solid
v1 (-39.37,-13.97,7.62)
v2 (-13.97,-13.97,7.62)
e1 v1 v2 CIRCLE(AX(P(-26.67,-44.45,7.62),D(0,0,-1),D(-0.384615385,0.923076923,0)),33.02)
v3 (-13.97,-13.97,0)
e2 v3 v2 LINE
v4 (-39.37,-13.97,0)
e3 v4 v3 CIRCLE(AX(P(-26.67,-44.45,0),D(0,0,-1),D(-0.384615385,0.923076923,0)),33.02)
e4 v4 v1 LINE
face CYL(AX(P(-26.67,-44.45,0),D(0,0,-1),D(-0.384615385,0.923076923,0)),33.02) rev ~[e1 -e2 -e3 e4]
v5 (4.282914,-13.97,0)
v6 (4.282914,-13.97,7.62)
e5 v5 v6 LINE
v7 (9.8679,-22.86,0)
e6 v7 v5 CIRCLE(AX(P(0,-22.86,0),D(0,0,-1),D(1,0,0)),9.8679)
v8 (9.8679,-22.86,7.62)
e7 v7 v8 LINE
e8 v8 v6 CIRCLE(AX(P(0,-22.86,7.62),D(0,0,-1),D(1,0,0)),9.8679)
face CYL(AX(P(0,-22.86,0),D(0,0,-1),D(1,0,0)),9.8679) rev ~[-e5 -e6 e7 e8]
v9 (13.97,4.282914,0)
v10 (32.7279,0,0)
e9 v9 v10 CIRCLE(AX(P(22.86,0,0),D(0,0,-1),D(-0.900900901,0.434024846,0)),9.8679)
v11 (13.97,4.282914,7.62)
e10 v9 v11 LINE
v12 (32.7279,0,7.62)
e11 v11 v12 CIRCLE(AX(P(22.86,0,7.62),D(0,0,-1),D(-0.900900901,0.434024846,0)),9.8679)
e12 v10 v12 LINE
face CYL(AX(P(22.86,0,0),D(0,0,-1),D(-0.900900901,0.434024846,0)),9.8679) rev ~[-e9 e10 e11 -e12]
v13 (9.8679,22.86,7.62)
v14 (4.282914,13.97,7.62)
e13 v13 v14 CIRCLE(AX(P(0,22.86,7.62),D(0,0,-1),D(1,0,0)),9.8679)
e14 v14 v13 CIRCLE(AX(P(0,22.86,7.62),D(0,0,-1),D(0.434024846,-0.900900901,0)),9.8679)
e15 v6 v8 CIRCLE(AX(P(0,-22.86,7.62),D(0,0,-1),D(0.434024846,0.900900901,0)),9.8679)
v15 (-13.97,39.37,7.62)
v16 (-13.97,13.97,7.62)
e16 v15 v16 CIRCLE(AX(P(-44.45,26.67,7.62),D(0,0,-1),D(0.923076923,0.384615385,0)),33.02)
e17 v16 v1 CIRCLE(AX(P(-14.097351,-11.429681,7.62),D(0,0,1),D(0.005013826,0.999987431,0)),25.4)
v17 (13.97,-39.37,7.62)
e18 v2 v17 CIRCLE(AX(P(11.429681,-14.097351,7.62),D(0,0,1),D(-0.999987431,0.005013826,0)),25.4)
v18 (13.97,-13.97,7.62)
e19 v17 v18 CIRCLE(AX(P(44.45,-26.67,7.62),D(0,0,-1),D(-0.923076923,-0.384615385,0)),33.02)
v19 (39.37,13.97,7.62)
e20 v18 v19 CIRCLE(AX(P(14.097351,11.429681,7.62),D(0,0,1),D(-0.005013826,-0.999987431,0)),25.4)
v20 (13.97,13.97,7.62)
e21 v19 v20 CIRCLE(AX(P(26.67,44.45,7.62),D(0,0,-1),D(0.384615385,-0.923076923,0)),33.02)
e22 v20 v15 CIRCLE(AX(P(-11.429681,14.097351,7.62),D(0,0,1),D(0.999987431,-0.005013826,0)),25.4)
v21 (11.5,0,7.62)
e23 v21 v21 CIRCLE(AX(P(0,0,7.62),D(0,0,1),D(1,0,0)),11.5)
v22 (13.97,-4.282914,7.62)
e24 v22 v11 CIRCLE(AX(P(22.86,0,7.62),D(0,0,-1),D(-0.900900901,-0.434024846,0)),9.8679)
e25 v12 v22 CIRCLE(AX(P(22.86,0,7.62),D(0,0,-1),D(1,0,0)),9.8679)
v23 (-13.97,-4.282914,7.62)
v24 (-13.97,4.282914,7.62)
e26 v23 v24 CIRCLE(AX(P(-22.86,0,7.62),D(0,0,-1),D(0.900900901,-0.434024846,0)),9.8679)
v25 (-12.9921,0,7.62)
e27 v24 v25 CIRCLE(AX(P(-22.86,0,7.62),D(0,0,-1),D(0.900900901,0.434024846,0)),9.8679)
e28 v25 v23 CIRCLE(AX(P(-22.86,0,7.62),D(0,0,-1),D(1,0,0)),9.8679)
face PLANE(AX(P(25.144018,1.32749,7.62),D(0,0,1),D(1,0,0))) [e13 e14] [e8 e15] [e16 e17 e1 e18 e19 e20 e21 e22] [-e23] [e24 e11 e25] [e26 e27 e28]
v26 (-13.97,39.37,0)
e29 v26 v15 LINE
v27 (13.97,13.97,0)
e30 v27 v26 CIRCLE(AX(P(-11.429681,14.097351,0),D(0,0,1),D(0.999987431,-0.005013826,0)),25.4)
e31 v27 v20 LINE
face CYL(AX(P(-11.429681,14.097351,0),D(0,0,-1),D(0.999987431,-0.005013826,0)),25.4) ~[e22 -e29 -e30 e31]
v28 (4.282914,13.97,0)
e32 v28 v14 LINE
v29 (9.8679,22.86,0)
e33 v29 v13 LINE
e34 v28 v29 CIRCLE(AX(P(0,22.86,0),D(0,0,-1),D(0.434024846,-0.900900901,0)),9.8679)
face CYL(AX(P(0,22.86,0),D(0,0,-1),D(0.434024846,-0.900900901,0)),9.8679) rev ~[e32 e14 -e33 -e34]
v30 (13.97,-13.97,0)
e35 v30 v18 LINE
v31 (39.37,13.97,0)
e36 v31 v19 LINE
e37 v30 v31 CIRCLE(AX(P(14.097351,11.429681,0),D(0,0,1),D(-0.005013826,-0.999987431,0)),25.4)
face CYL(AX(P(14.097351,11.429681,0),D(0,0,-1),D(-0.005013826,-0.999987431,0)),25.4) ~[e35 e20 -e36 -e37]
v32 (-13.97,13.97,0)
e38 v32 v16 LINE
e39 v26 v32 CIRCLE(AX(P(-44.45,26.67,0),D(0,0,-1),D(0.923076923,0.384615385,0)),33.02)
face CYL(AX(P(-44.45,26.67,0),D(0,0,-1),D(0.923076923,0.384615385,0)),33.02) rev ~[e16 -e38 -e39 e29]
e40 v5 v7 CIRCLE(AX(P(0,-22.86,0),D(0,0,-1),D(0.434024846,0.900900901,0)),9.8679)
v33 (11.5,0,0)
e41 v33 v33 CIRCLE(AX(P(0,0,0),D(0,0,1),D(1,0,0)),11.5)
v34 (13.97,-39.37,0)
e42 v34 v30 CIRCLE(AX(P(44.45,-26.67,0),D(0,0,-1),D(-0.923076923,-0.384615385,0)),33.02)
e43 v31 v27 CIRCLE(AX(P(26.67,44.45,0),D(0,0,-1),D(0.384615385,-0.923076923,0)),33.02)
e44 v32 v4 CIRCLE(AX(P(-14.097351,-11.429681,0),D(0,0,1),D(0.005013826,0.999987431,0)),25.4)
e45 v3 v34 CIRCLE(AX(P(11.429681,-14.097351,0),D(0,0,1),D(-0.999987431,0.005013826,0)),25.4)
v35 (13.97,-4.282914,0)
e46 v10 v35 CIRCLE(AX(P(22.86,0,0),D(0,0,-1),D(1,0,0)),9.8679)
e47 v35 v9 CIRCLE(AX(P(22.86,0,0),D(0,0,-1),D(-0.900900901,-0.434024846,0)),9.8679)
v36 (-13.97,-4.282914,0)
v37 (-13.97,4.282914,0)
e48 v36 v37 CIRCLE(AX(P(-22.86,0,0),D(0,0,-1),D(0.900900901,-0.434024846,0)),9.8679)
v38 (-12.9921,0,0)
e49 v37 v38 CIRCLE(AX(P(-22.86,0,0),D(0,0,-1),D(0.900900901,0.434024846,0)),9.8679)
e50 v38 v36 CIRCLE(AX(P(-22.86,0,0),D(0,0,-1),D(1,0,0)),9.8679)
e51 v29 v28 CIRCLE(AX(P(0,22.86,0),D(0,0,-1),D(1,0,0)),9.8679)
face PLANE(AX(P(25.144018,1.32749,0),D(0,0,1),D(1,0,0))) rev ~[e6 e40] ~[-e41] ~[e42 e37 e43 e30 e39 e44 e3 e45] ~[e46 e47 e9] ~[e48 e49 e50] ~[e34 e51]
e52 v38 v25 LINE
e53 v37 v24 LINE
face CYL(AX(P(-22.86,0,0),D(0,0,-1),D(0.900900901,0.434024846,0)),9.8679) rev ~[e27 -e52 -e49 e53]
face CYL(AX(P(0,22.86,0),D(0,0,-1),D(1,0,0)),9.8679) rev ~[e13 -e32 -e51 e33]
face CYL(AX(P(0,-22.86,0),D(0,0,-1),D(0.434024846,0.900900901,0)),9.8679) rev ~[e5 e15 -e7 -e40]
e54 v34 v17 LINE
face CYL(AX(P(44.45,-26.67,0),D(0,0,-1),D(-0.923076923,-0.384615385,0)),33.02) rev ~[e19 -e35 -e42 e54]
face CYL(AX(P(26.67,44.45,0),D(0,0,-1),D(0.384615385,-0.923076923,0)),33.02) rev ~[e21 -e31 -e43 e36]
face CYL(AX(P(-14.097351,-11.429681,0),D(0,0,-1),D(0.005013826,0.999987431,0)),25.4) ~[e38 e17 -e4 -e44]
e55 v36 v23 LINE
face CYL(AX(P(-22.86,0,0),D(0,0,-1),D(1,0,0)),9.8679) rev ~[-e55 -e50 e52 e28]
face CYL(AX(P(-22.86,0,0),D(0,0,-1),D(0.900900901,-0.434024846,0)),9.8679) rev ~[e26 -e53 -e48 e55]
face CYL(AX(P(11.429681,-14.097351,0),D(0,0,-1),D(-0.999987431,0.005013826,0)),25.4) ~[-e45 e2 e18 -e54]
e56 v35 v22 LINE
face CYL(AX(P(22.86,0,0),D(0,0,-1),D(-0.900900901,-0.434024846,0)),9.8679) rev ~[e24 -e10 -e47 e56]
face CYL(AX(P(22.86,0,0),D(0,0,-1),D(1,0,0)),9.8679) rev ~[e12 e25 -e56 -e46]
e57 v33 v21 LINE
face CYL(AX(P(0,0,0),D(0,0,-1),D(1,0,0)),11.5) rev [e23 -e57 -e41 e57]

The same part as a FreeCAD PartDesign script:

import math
import FreeCAD as App
import Part
import Sketcher
from FreeCAD import Vector
Q = App.Units.Quantity

doc = App.newDocument("Part")
body = doc.addObject("PartDesign::Body", "Body")

sketch1 = body.newObject("Sketcher::SketchObject", "Sketch")
sketch1.AttachmentSupport = (doc.getObject("XY_Plane"), [""])
sketch1.MapMode = "FlatFace"
sketch1.addGeometry(Part.ArcOfCircle(Part.Circle(Vector(14.1, 11.4, 0), Vector(0, 0, 1), 25.4), math.radians(-90), math.radians(6)), False)
sketch1.addGeometry(Part.ArcOfCircle(Part.Circle(Vector(26.7, 44.5, 0), Vector(0, 0, 1), 33), math.radians(-113), math.radians(-67)), False)
sketch1.addGeometry(Part.ArcOfCircle(Part.Circle(Vector(-11.4, 14.1, 0), Vector(0, 0, 1), 25.4), math.radians(0), math.radians(96)), False)
sketch1.addGeometry(Part.ArcOfCircle(Part.Circle(Vector(-44.5, 26.7, 0), Vector(0, 0, 1), 33), math.radians(-23), math.radians(23)), False)
sketch1.addGeometry(Part.ArcOfCircle(Part.Circle(Vector(-14.1, -11.4, 0), Vector(0, 0, 1), 25.4), math.radians(90), math.radians(186)), False)
sketch1.addGeometry(Part.ArcOfCircle(Part.Circle(Vector(-26.7, -44.5, 0), Vector(0, 0, 1), 33), math.radians(67), math.radians(113)), False)
sketch1.addGeometry(Part.ArcOfCircle(Part.Circle(Vector(11.4, -14.1, 0), Vector(0, 0, 1), 25.4), math.radians(180), math.radians(276)), False)
sketch1.addGeometry(Part.ArcOfCircle(Part.Circle(Vector(44.5, -26.7, 0), Vector(0, 0, 1), 33), math.radians(157), math.radians(203)), False)
sketch1.addGeometry(Part.ArcOfCircle(Part.Circle(Vector(0, -22.9, 0), Vector(0, 0, 1), 9.9), math.radians(0), math.radians(64)), False)
sketch1.addGeometry(Part.ArcOfCircle(Part.Circle(Vector(0, -22.9, 0), Vector(0, 0, 1), 9.9), math.radians(64), math.radians(360)), False)
sketch1.addGeometry(Part.ArcOfCircle(Part.Circle(Vector(-22.9, 0, 0), Vector(0, 0, 1), 9.9), math.radians(0), math.radians(26)), False)
sketch1.addGeometry(Part.ArcOfCircle(Part.Circle(Vector(-22.9, 0, 0), Vector(0, 0, 1), 9.9), math.radians(-26), math.radians(0)), False)
sketch1.addGeometry(Part.ArcOfCircle(Part.Circle(Vector(-22.9, 0, 0), Vector(0, 0, 1), 9.9), math.radians(26), math.radians(334)), False)
sketch1.addGeometry(Part.Circle(Vector(0, 0, 0), Vector(0, 0, 1), 11.5), False)
sketch1.addGeometry(Part.ArcOfCircle(Part.Circle(Vector(22.9, 0, 0), Vector(0, 0, 1), 9.9), math.radians(0), math.radians(154)), False)
sketch1.addGeometry(Part.ArcOfCircle(Part.Circle(Vector(22.9, 0, 0), Vector(0, 0, 1), 9.9), math.radians(-154), math.radians(0)), False)
sketch1.addGeometry(Part.ArcOfCircle(Part.Circle(Vector(22.9, 0, 0), Vector(0, 0, 1), 9.9), math.radians(154), math.radians(206)), False)
sketch1.addGeometry(Part.ArcOfCircle(Part.Circle(Vector(0, 22.9, 0), Vector(0, 0, 1), 9.9), math.radians(0), math.radians(296)), False)
sketch1.addGeometry(Part.ArcOfCircle(Part.Circle(Vector(0, 22.9, 0), Vector(0, 0, 1), 9.9), math.radians(-64), math.radians(0)), False)
sketch1.addConstraint(Sketcher.Constraint("Coincident", 0, 2, 1, 2))
sketch1.addConstraint(Sketcher.Constraint("Coincident", 1, 1, 2, 1))
sketch1.addConstraint(Sketcher.Constraint("Coincident", 2, 2, 3, 2))
sketch1.addConstraint(Sketcher.Constraint("Coincident", 3, 1, 4, 1))
sketch1.addConstraint(Sketcher.Constraint("Coincident", 4, 2, 5, 2))
sketch1.addConstraint(Sketcher.Constraint("Coincident", 5, 1, 6, 1))
sketch1.addConstraint(Sketcher.Constraint("Coincident", 6, 2, 7, 2))
sketch1.addConstraint(Sketcher.Constraint("Coincident", 7, 1, 0, 1))
sketch1.addConstraint(Sketcher.Constraint("Tangent", 8, 1, 9, 2))
sketch1.addConstraint(Sketcher.Constraint("Coincident", 9, 1, 8, 2))
sketch1.addConstraint(Sketcher.Constraint("Tangent", 10, 1, 11, 2))
sketch1.addConstraint(Sketcher.Constraint("Tangent", 11, 1, 12, 2))
sketch1.addConstraint(Sketcher.Constraint("Tangent", 12, 1, 10, 2))
sketch1.addConstraint(Sketcher.Constraint("Tangent", 14, 1, 15, 2))
sketch1.addConstraint(Sketcher.Constraint("Tangent", 15, 1, 16, 2))
sketch1.addConstraint(Sketcher.Constraint("Tangent", 16, 1, 14, 2))
sketch1.addConstraint(Sketcher.Constraint("Tangent", 17, 1, 18, 2))
sketch1.addConstraint(Sketcher.Constraint("Coincident", 18, 1, 17, 2))
sketch1.addConstraint(Sketcher.Constraint("Coincident", 13, 3, -1, 1))
sketch1.addConstraint(Sketcher.Constraint("Equal", 0, 2))
sketch1.addConstraint(Sketcher.Constraint("Equal", 1, 3))
sketch1.addConstraint(Sketcher.Constraint("Equal", 2, 4))
sketch1.addConstraint(Sketcher.Constraint("Equal", 3, 5))
sketch1.addConstraint(Sketcher.Constraint("Equal", 4, 6))
sketch1.addConstraint(Sketcher.Constraint("Equal", 5, 7))
sketch1.addConstraint(Sketcher.Constraint("Equal", 9, 10))
sketch1.addConstraint(Sketcher.Constraint("Equal", 12, 14))
sketch1.addConstraint(Sketcher.Constraint("Equal", 16, 17))
sketch1.addConstraint(Sketcher.Constraint("Symmetric", 0, 3, 4, 3, -1, 1))
sketch1.addConstraint(Sketcher.Constraint("Symmetric", 1, 3, 5, 3, -1, 1))
sketch1.addConstraint(Sketcher.Constraint("Symmetric", 2, 3, 6, 3, -1, 1))
sketch1.addConstraint(Sketcher.Constraint("Symmetric", 3, 3, 7, 3, -1, 1))
sketch1.addConstraint(Sketcher.Constraint("Symmetric", 10, 3, 14, 3, -1, 1))
sketch1.addConstraint(Sketcher.Constraint("Symmetric", 8, 3, 17, 3, -1, 1))
sketch1.addConstraint(Sketcher.Constraint("Symmetric", 1, 1, 3, 1, -2))
sketch1.addConstraint(Sketcher.Constraint("Symmetric", 11, 1, 15, 1, -2))
sketch1.addConstraint(Sketcher.Constraint("Symmetric", 8, 1, 17, 1, -1))
sketch1.addConstraint(Sketcher.Constraint("PointOnObject", 10, 1, -1))
sketch1.addConstraint(Sketcher.Constraint("PointOnObject", 14, 1, -1))
sketch1.addConstraint(Sketcher.Constraint("Horizontal", 0, 2, 1, 1))
sketch1.addConstraint(Sketcher.Constraint("Horizontal", 9, 3, 8, 1))
sketch1.addConstraint(Sketcher.Constraint("Horizontal", 7, 1, 9, 1))
sketch1.addConstraint(Sketcher.Constraint("Horizontal", 12, 1, 16, 1))
sketch1.addConstraint(Sketcher.Constraint("Horizontal", 3, 1, 18, 1))
sketch1.addConstraint(Sketcher.Constraint("Vertical", 2, 2, 3, 1))
sketch1.addConstraint(Sketcher.Constraint("Vertical", 5, 1, 11, 1))
sketch1.addConstraint(Sketcher.Constraint("Vertical", 11, 1, 12, 1))
sketch1.addConstraint(Sketcher.Constraint("Radius", 0, Q("1 in")))
sketch1.addConstraint(Sketcher.Constraint("Radius", 1, Q("1.3 in")))
sketch1.addConstraint(Sketcher.Constraint("DistanceY", 1, 1, 2, 2, Q("1 in")))
sketch1.addConstraint(Sketcher.Constraint("DistanceY", 8, 3, -1, 1, Q("0.9 in")))
sketch1.addConstraint(Sketcher.Constraint("DistanceX", 10, 3, -1, 1, Q("0.9 in")))
sketch1.addConstraint(Sketcher.Constraint("Radius", 8, Q("0.3885 in")))
sketch1.addConstraint(Sketcher.Constraint("DistanceX", 3, 3, 1, 3, Q("2.8 in")))
sketch1.addConstraint(Sketcher.Constraint("DistanceY", 3, 3, 1, 3, Q("0.7 in")))
sketch1.addConstraint(Sketcher.Constraint("DistanceY", 5, 3, 3, 3, Q("2.8 in")))
sketch1.addConstraint(Sketcher.Constraint("Diameter", 13, Q("23 mm")))
pad1 = body.newObject("PartDesign::Pad", "Pad")
pad1.Profile = sketch1
pad1.Length = Q("0.3 in")

doc.recompute()
